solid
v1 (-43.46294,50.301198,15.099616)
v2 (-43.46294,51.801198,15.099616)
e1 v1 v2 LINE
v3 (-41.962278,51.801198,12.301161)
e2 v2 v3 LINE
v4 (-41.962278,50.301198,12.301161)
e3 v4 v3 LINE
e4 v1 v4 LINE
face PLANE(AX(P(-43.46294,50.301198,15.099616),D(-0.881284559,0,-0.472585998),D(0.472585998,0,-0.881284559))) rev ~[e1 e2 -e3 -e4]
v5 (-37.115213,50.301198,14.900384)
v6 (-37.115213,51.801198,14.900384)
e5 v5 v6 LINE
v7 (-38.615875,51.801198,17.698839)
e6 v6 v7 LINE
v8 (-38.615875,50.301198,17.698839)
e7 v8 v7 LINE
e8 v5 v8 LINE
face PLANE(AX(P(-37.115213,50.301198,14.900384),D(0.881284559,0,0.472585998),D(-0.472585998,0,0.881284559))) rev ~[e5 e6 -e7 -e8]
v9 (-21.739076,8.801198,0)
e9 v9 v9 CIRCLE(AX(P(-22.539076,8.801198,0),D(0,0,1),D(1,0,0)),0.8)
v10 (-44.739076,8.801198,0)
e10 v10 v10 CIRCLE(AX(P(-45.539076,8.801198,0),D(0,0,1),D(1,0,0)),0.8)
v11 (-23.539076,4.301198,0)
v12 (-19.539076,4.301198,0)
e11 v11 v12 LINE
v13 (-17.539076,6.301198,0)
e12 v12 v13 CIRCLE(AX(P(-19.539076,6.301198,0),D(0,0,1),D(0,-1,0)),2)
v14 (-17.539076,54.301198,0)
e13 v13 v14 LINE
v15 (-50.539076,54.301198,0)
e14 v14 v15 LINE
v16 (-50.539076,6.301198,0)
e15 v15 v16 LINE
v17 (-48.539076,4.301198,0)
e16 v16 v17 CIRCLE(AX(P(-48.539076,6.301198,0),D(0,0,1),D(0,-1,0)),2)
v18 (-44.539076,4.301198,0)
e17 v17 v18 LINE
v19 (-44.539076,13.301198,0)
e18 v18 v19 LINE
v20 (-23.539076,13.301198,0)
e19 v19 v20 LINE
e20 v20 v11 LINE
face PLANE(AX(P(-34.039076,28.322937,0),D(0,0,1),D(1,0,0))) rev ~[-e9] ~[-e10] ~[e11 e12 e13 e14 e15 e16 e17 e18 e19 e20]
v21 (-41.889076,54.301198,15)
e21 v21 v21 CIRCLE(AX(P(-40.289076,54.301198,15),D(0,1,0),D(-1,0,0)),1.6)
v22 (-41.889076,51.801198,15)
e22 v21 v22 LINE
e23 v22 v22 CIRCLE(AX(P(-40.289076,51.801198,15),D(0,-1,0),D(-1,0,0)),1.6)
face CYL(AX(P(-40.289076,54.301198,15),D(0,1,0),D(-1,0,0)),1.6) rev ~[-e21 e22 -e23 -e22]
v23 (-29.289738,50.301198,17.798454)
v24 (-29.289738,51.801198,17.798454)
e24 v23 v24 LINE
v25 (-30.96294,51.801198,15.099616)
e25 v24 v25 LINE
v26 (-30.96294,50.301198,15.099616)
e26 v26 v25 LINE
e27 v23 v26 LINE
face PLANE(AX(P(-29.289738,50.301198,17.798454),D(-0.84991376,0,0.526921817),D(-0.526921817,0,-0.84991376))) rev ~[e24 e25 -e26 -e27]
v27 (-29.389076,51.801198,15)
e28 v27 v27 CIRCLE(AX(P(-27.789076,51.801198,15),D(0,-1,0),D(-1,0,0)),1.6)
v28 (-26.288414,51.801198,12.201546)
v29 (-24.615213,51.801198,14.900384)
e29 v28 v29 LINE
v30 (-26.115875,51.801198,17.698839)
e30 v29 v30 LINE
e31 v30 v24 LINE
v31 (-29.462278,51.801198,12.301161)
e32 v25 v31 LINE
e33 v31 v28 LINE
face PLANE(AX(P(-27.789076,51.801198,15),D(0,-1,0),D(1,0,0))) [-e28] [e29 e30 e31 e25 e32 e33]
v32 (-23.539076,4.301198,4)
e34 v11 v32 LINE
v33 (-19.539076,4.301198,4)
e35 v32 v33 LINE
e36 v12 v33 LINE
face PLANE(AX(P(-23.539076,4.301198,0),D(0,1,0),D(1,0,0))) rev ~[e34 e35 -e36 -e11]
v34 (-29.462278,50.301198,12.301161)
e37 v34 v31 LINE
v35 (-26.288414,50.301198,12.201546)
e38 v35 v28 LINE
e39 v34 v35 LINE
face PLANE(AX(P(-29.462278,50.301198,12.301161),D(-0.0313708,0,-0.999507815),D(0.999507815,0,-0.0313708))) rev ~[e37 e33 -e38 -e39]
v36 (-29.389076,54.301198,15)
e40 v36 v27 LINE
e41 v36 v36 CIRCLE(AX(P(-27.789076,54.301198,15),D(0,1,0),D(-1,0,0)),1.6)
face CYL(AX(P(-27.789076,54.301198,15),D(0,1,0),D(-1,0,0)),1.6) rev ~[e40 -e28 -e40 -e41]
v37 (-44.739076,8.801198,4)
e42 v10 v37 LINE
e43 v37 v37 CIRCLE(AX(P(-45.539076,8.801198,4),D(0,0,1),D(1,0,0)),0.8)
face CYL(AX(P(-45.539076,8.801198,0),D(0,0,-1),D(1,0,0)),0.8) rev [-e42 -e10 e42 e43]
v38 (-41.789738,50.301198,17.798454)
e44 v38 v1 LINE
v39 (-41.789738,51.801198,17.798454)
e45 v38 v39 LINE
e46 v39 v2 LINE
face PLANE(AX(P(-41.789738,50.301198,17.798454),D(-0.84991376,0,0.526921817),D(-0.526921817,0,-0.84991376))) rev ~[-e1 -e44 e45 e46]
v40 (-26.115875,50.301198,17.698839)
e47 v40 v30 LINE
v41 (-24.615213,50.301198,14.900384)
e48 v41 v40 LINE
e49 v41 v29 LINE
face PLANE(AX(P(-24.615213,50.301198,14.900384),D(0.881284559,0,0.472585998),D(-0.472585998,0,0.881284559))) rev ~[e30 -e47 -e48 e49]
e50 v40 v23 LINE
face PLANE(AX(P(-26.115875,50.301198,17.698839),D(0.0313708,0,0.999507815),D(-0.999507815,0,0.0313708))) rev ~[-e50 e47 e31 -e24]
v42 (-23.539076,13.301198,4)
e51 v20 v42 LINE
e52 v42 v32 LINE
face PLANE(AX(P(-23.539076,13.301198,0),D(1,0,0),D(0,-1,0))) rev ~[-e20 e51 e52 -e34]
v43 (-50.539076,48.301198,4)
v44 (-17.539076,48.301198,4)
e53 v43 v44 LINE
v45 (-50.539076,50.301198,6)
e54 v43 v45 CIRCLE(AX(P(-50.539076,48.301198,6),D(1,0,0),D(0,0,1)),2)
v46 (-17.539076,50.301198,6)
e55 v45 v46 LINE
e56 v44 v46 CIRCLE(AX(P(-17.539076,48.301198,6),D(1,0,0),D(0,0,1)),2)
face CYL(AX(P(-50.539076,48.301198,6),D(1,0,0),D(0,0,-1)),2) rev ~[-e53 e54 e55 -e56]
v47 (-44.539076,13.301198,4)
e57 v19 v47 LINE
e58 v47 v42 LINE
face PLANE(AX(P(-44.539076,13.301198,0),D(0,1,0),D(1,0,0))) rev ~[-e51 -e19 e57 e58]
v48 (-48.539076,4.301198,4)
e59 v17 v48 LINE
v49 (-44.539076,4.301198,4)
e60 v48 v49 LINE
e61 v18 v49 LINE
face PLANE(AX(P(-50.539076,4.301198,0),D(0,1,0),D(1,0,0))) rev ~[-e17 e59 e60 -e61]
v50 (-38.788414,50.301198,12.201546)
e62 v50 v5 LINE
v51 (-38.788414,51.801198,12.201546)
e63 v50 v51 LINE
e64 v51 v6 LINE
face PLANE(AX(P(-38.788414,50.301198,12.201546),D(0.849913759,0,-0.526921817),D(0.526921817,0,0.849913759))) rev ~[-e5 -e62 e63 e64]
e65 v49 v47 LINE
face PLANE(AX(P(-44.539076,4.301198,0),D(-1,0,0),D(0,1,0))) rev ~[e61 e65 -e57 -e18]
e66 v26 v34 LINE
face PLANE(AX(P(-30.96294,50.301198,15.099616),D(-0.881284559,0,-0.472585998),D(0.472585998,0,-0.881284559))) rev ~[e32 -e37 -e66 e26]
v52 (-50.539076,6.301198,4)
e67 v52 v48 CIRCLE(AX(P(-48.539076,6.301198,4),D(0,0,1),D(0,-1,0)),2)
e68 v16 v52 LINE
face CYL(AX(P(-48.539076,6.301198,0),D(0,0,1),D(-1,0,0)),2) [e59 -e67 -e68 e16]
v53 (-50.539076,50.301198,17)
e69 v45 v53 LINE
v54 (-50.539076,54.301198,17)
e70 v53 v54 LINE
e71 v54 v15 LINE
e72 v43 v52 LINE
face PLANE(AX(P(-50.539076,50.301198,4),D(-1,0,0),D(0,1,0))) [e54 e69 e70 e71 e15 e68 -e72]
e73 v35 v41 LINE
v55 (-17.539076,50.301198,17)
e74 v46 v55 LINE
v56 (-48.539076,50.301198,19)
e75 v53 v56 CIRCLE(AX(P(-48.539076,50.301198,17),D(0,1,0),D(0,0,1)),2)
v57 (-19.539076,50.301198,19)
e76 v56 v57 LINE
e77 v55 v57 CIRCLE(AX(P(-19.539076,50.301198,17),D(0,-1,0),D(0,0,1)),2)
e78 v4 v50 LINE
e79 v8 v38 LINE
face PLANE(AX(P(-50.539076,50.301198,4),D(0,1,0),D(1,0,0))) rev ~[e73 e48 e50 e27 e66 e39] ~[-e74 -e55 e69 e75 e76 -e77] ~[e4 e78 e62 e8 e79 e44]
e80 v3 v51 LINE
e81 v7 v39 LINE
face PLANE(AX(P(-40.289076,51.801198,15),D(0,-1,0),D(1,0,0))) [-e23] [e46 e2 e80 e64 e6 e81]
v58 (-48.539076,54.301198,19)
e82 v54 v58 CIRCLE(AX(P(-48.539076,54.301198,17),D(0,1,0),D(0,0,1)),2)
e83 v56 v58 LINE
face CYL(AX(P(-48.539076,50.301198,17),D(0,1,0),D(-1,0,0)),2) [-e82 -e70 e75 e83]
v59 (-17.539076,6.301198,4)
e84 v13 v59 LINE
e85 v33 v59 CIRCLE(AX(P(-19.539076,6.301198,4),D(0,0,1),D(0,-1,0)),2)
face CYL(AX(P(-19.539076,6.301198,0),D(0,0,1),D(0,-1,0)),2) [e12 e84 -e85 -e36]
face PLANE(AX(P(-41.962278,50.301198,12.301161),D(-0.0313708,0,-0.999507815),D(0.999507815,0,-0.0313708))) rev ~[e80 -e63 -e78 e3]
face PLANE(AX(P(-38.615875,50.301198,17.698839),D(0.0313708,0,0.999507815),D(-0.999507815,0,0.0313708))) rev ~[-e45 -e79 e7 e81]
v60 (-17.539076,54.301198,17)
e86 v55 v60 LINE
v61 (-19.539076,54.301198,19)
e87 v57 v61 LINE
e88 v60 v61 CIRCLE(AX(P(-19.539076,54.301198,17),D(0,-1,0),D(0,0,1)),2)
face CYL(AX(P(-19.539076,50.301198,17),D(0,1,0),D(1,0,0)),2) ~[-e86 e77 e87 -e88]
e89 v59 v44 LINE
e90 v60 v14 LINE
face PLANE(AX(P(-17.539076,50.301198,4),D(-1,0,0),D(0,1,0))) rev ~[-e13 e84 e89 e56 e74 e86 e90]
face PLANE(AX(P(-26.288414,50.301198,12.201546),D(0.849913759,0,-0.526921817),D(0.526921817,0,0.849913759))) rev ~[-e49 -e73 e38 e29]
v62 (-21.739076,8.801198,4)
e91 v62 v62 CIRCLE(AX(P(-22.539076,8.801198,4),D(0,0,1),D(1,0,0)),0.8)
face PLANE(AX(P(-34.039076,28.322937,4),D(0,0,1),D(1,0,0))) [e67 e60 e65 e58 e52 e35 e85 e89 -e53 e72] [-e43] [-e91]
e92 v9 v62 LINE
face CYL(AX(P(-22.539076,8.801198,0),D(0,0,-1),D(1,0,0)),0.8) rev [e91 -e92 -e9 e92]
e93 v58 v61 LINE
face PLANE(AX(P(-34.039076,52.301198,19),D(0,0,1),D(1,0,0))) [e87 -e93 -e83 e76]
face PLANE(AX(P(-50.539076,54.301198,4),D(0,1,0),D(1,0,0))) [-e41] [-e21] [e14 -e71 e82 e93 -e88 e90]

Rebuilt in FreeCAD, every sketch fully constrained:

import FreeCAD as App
import Part
import Sketcher
from FreeCAD import Vector


def edges_at(feature, points):
    """Names of the edges that pass closest to the given points."""
    edges = feature.Shape.Edges
    near = lambda p: min(range(len(edges)), key=lambda i: edges[i].distToShape(Part.Vertex(*p))[0])
    return sorted({f"Edge{near(p) + 1}" for p in points})

doc = App.newDocument("Part")
body = doc.addObject("PartDesign::Body", "Body")

# Sketch on XY plane
sketch1 = doc.addObject("Sketcher::SketchObject", "Sketch")
body.addObject(sketch1)
sketch1.AttachmentSupport = (doc.XY_Plane, [""])
sketch1.MapMode = "FlatFace"
sketch1.addGeometry(Part.LineSegment(Vector(-50.539076, 54.301198, 0), Vector(-50.539076, 4.301198, 0)), False)
sketch1.addGeometry(Part.LineSegment(Vector(-50.539076, 4.301198, 0), Vector(-44.539076, 4.301198, 0)), False)
sketch1.addGeometry(Part.LineSegment(Vector(-44.539076, 4.301198, 0), Vector(-44.539076, 13.301198, 0)), False)
sketch1.addGeometry(Part.LineSegment(Vector(-44.539076, 13.301198, 0), Vector(-23.539076, 13.301198, 0)), False)
sketch1.addGeometry(Part.LineSegment(Vector(-23.539076, 13.301198, 0), Vector(-23.539076, 4.301198, 0)), False)
sketch1.addGeometry(Part.LineSegment(Vector(-23.539076, 4.301198, 0), Vector(-17.539076, 4.301198, 0)), False)
sketch1.addGeometry(Part.LineSegment(Vector(-17.539076, 4.301198, 0), Vector(-17.539076, 54.301198, 0)), False)
sketch1.addGeometry(Part.LineSegment(Vector(-17.539076, 54.301198, 0), Vector(-50.539076, 54.301198, 0)), False)
sketch1.addGeometry(Part.Circle(Vector(-45.539076, 8.801198, 0), Vector(0, 0, 1), 0.8), False)
sketch1.addGeometry(Part.Circle(Vector(-22.539076, 8.801198, 0), Vector(0, 0, 1), 0.8), False)
sketch1.addConstraint(Sketcher.Constraint("Coincident", 0, 2, 1, 1))
sketch1.addConstraint(Sketcher.Constraint("Coincident", 1, 2, 2, 1))
sketch1.addConstraint(Sketcher.Constraint("Coincident", 2, 2, 3, 1))
sketch1.addConstraint(Sketcher.Constraint("Coincident", 3, 2, 4, 1))
sketch1.addConstraint(Sketcher.Constraint("Coincident", 4, 2, 5, 1))
sketch1.addConstraint(Sketcher.Constraint("Coincident", 5, 2, 6, 1))
sketch1.addConstraint(Sketcher.Constraint("Coincident", 6, 2, 7, 1))
sketch1.addConstraint(Sketcher.Constraint("Coincident", 7, 2, 0, 1))
sketch1.addConstraint(Sketcher.Constraint("Vertical", 0))
sketch1.addConstraint(Sketcher.Constraint("Horizontal", 1))
sketch1.addConstraint(Sketcher.Constraint("Vertical", 2))
sketch1.addConstraint(Sketcher.Constraint("Horizontal", 3))
sketch1.addConstraint(Sketcher.Constraint("Vertical", 4))
sketch1.addConstraint(Sketcher.Constraint("Horizontal", 5))
sketch1.addConstraint(Sketcher.Constraint("Vertical", 6))
sketch1.addConstraint(Sketcher.Constraint("Horizontal", 7))
sketch1.addConstraint(Sketcher.Constraint("Equal", 8, 9))
sketch1.addConstraint(Sketcher.Constraint("Horizontal", 8, 3, 9, 3))
sketch1.addConstraint(Sketcher.Constraint("Horizontal", 1, 2, 4, 2))
sketch1.addConstraint(Sketcher.Constraint("Equal", 1, 5))
sketch1.addConstraint(Sketcher.Constraint("Diameter", 8, 1.6))
sketch1.addConstraint(Sketcher.Constraint("DistanceX", 1, 1, 1, 2, 6.0))
sketch1.addConstraint(Sketcher.Constraint("DistanceX", 3, 1, 3, 2, 21.0))
sketch1.addConstraint(Sketcher.Constraint("DistanceY", 0, 2, 0, 1, 50.0))
sketch1.addConstraint(Sketcher.Constraint("DistanceY", 2, 1, 2, 2, 9.0))
sketch1.addConstraint(Sketcher.Constraint("DistanceX", 8, 3, 9, 3, 23.0))
sketch1.addConstraint(Sketcher.Constraint("DistanceX", 0, 2, 8, 3, 5.0))
sketch1.addConstraint(Sketcher.Constraint("DistanceY", 0, 2, 8, 3, 4.5))
sketch1.addConstraint(Sketcher.Constraint("DistanceX", 8, 3, -1, 1, 45.539076))
sketch1.addConstraint(Sketcher.Constraint("DistanceY", -1, 1, 8, 3, 8.801198))
pad1 = doc.addObject("PartDesign::Pad", "Pad")
body.addObject(pad1)
pad1.Profile = sketch1
pad1.Length = 4

# Sketch on XY plane
sketch2 = doc.addObject("Sketcher::SketchObject", "Sketch001")
body.addObject(sketch2)
sketch2.AttachmentSupport = (doc.XY_Plane, [""])
sketch2.MapMode = "FlatFace"
sketch2.AttachmentOffset = App.Placement(Vector(0, 0, 4), App.Rotation())
sketch2.addGeometry(Part.LineSegment(Vector(-50.539076, 54.301198, 0), Vector(-50.539076, 50.301198, 0)), False)
sketch2.addGeometry(Part.LineSegment(Vector(-50.539076, 50.301198, 0), Vector(-17.539076, 50.301198, 0)), False)
sketch2.addGeometry(Part.LineSegment(Vector(-17.539076, 50.301198, 0), Vector(-17.539076, 54.301198, 0)), False)
sketch2.addGeometry(Part.LineSegment(Vector(-17.539076, 54.301198, 0), Vector(-50.539076, 54.301198, 0)), False)
sketch2.addConstraint(Sketcher.Constraint("Coincident", 0, 2, 1, 1))
sketch2.addConstraint(Sketcher.Constraint("Coincident", 1, 2, 2, 1))
sketch2.addConstraint(Sketcher.Constraint("Coincident", 2, 2, 3, 1))
sketch2.addConstraint(Sketcher.Constraint("Coincident", 3, 2, 0, 1))
sketch2.addConstraint(Sketcher.Constraint("Vertical", 0))
sketch2.addConstraint(Sketcher.Constraint("Horizontal", 1))
sketch2.addConstraint(Sketcher.Constraint("Vertical", 2))
sketch2.addConstraint(Sketcher.Constraint("Horizontal", 3))
sketch2.addConstraint(Sketcher.Constraint("DistanceX", 1, 1, 1, 2, 33.0))
sketch2.addConstraint(Sketcher.Constraint("DistanceY", 0, 2, 0, 1, 4.0))
sketch2.addConstraint(Sketcher.Constraint("DistanceX", 0, 2, -1, 1, 50.539076))
sketch2.addConstraint(Sketcher.Constraint("DistanceY", -1, 1, 0, 2, 50.301198))
pad2 = doc.addObject("PartDesign::Pad", "Pad001")
body.addObject(pad2)
pad2.Profile = sketch2
pad2.Length = 15

# Sketch on XZ plane
sketch3 = doc.addObject("Sketcher::SketchObject", "Sketch002")
body.addObject(sketch3)
sketch3.AttachmentSupport = (doc.XZ_Plane, [""])
sketch3.MapMode = "FlatFace"
sketch3.AttachmentOffset = App.Placement(Vector(0, 0, -54.301198), App.Rotation())
sketch3.addGeometry(Part.Circle(Vector(-40.289076, 15, 0), Vector(0, 0, 1), 1.6), False)
sketch3.addGeometry(Part.Circle(Vector(-27.789076, 15, 0), Vector(0, 0, 1), 1.6), False)
sketch3.addConstraint(Sketcher.Constraint("Equal", 0, 1))
sketch3.addConstraint(Sketcher.Constraint("Horizontal", 0, 3, 1, 3))
sketch3.addConstraint(Sketcher.Constraint("Diameter", 0, 3.2))
sketch3.addConstraint(Sketcher.Constraint("DistanceY", -1, 1, 0, 3, 15.0))
sketch3.addConstraint(Sketcher.Constraint("DistanceX", 0, 3, 1, 3, 12.5))
sketch3.addConstraint(Sketcher.Constraint("DistanceX", 0, 3, -1, 1, 40.289076))
pocket1 = doc.addObject("PartDesign::Pocket", "Pocket")
body.addObject(pocket1)
pocket1.Profile = sketch3
pocket1.Length = 25
pocket1.Reversed = True

# Sketch on XZ plane
sketch4 = doc.addObject("Sketcher::SketchObject", "Sketch003")
body.addObject(sketch4)
sketch4.AttachmentSupport = (doc.XZ_Plane, [""])
sketch4.MapMode = "FlatFace"
sketch4.AttachmentOffset = App.Placement(Vector(0, 0, -50.301198), App.Rotation())
sketch4.addGeometry(Part.LineSegment(Vector(-38.788414, 12.201546, 0), Vector(-37.115213, 14.900384, 0)), False)
sketch4.addGeometry(Part.LineSegment(Vector(-37.115213, 14.900384, 0), Vector(-38.615875, 17.698839, 0)), False)
sketch4.addGeometry(Part.LineSegment(Vector(-38.615875, 17.698839, 0), Vector(-41.789738, 17.798454, 0)), False)
sketch4.addGeometry(Part.LineSegment(Vector(-41.789738, 17.798454, 0), Vector(-43.46294, 15.099616, 0)), False)
sketch4.addGeometry(Part.LineSegment(Vector(-43.46294, 15.099616, 0), Vector(-41.962278, 12.301161, 0)), False)
sketch4.addGeometry(Part.LineSegment(Vector(-41.962278, 12.301161, 0), Vector(-38.788414, 12.201546, 0)), False)
sketch4.addGeometry(Part.Circle(Vector(-40.289076, 15, 0), Vector(0, 0, 1), 1.6), False)
sketch4.addGeometry(Part.LineSegment(Vector(-26.288414, 12.201546, 0), Vector(-24.615213, 14.900384, 0)), False)
sketch4.addGeometry(Part.LineSegment(Vector(-24.615213, 14.900384, 0), Vector(-26.115875, 17.698839, 0)), False)
sketch4.addGeometry(Part.LineSegment(Vector(-26.115875, 17.698839, 0), Vector(-29.289738, 17.798454, 0)), False)
sketch4.addGeometry(Part.LineSegment(Vector(-29.289738, 17.798454, 0), Vector(-30.96294, 15.099616, 0)), False)
sketch4.addGeometry(Part.LineSegment(Vector(-30.96294, 15.099616, 0), Vector(-29.462278, 12.301161, 0)), False)
sketch4.addGeometry(Part.LineSegment(Vector(-29.462278, 12.301161, 0), Vector(-26.288414, 12.201546, 0)), False)
sketch4.addGeometry(Part.Circle(Vector(-27.789076, 15, 0), Vector(0, 0, 1), 1.6), False)
sketch4.addConstraint(Sketcher.Constraint("Coincident", 0, 2, 1, 1))
sketch4.addConstraint(Sketcher.Constraint("Coincident", 1, 2, 2, 1))
sketch4.addConstraint(Sketcher.Constraint("Coincident", 2, 2, 3, 1))
sketch4.addConstraint(Sketcher.Constraint("Coincident", 3, 2, 4, 1))
sketch4.addConstraint(Sketcher.Constraint("Coincident", 4, 2, 5, 1))
sketch4.addConstraint(Sketcher.Constraint("Coincident", 5, 2, 0, 1))
sketch4.addConstraint(Sketcher.Constraint("Coincident", 7, 2, 8, 1))
sketch4.addConstraint(Sketcher.Constraint("Coincident", 8, 2, 9, 1))
sketch4.addConstraint(Sketcher.Constraint("Coincident", 9, 2, 10, 1))
sketch4.addConstraint(Sketcher.Constraint("Coincident", 10, 2, 11, 1))
sketch4.addConstraint(Sketcher.Constraint("Coincident", 11, 2, 12, 1))
sketch4.addConstraint(Sketcher.Constraint("Coincident", 12, 2, 7, 1))
sketch4.addConstraint(Sketcher.Constraint("Equal", 6, 13))
sketch4.addConstraint(Sketcher.Constraint("Parallel", 0, 3))
sketch4.addConstraint(Sketcher.Constraint("Parallel", 1, 4))
sketch4.addConstraint(Sketcher.Constraint("Parallel", 2, 5))
sketch4.addConstraint(Sketcher.Constraint("Parallel", 3, 7))
sketch4.addConstraint(Sketcher.Constraint("Parallel", 4, 8))
sketch4.addConstraint(Sketcher.Constraint("Parallel", 5, 9))
sketch4.addConstraint(Sketcher.Constraint("Parallel", 7, 10))
sketch4.addConstraint(Sketcher.Constraint("Parallel", 8, 11))
sketch4.addConstraint(Sketcher.Constraint("Parallel", 9, 12))
sketch4.addConstraint(Sketcher.Constraint("Horizontal", 6, 3, 13, 3))
sketch4.addConstraint(Sketcher.Constraint("Horizontal", 0, 2, 7, 2))
sketch4.addConstraint(Sketcher.Constraint("Horizontal", 1, 2, 8, 2))
sketch4.addConstraint(Sketcher.Constraint("Horizontal", 2, 2, 9, 2))
sketch4.addConstraint(Sketcher.Constraint("Horizontal", 3, 2, 10, 2))
sketch4.addConstraint(Sketcher.Constraint("Horizontal", 4, 2, 11, 2))
sketch4.addConstraint(Sketcher.Constraint("Equal", 0, 1))
sketch4.addConstraint(Sketcher.Constraint("Equal", 1, 2))
sketch4.addConstraint(Sketcher.Constraint("Equal", 2, 3))
sketch4.addConstraint(Sketcher.Constraint("Diameter", 6, 3.2))
sketch4.addConstraint(Sketcher.Constraint("DistanceY", -1, 1, 6, 3, 15.0))
sketch4.addConstraint(Sketcher.Constraint("DistanceX", 6, 3, 13, 3, 12.5))
sketch4.addConstraint(Sketcher.Constraint("DistanceX", 0, 2, 7, 2, 12.5))
sketch4.addConstraint(Sketcher.Constraint("DistanceX", 6, 3, 1, 2, 1.673201))
sketch4.addConstraint(Sketcher.Constraint("DistanceX", 3, 2, 2, 2, 1.673201))
sketch4.addConstraint(Sketcher.Constraint("DistanceX", 4, 2, 6, 3, 1.673201))
sketch4.addConstraint(Sketcher.Constraint("DistanceY", -1, 1, 1, 2, 17.698839))
sketch4.addConstraint(Sketcher.Constraint("DistanceX", 2, 2, -1, 1, 41.789738))
sketch4.addConstraint(Sketcher.Constraint("DistanceY", -1, 1, 4, 2, 12.301161))
sketch4.addConstraint(Sketcher.Constraint("DistanceY", 0, 2, 2, 2, 2.89807))
pocket2 = doc.addObject("PartDesign::Pocket", "Pocket001")
body.addObject(pocket2)
pocket2.Profile = sketch4
pocket2.Length = 1.5
doc.recompute()

fillet = doc.addObject("PartDesign::Fillet", "Fillet")
body.addObject(fillet)
fillet.Base = (pocket2, edges_at(pocket2, [
    (-50.539, 4.301, 2),
    (-17.539, 4.301, 2),
    (-17.539, 52.301, 19),
    (-50.539, 52.301, 19),
    (-34.039, 50.301, 4),
]))
fillet.Radius = 2

doc.recompute()
